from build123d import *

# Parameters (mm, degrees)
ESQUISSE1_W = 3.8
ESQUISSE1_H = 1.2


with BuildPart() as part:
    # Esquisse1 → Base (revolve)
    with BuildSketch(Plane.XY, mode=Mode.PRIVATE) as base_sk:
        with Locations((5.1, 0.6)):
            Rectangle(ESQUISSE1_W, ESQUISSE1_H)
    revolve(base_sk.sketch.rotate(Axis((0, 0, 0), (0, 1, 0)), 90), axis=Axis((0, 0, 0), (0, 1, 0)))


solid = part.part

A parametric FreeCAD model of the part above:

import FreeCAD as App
import Part
import Sketcher

V = App.Vector


def add_polygon(sketch, points):
    """Adds a closed chain of lines whose ends are joined by coincident constraints."""
    first, n = sketch.GeometryCount, len(points)
    for a, b in zip(points, points[1:] + points[:1]):
        sketch.addGeometry(Part.LineSegment(App.Vector(*a, 0), App.Vector(*b, 0)), False)
    for i in range(n):
        sketch.addConstraint(Sketcher.Constraint("Coincident", first + i, 2, first + (i + 1) % n, 1))

doc = App.newDocument("Part")
body = doc.addObject("PartDesign::Body", "Body")

# Sketch on XY plane
sketch1 = doc.addObject("Sketcher::SketchObject", "Sketch")
body.addObject(sketch1)
sketch1.AttachmentSupport = (doc.XY_Plane, [""])
sketch1.MapMode = "FlatFace"
add_polygon(sketch1, [(3.2, 1.2), (3.2, 0), (7, 0), (7, 1.2)])  # lines 0-3
sketch1.addConstraint(Sketcher.Constraint("Vertical", 0))
sketch1.addConstraint(Sketcher.Constraint("Horizontal", 1))
sketch1.addConstraint(Sketcher.Constraint("Vertical", 2))
sketch1.addConstraint(Sketcher.Constraint("Horizontal", 3))
sketch1.addConstraint(Sketcher.Constraint("PointOnObject", 0, 2, -1))
sketch1.addConstraint(Sketcher.Constraint("DistanceX", 1, 1, 1, 2, 3.8))
sketch1.addConstraint(Sketcher.Constraint("DistanceY", 0, 2, 0, 1, 1.2))
sketch1.addConstraint(Sketcher.Constraint("DistanceX", -1, 1, 1, 2, 7.0))
revolution = doc.addObject("PartDesign::Revolution", "Revolution")
body.addObject(revolution)
revolution.Profile = sketch1
revolution.ReferenceAxis = (sketch1, ["V_Axis"])
revolution.Angle = 360

doc.recompute()
